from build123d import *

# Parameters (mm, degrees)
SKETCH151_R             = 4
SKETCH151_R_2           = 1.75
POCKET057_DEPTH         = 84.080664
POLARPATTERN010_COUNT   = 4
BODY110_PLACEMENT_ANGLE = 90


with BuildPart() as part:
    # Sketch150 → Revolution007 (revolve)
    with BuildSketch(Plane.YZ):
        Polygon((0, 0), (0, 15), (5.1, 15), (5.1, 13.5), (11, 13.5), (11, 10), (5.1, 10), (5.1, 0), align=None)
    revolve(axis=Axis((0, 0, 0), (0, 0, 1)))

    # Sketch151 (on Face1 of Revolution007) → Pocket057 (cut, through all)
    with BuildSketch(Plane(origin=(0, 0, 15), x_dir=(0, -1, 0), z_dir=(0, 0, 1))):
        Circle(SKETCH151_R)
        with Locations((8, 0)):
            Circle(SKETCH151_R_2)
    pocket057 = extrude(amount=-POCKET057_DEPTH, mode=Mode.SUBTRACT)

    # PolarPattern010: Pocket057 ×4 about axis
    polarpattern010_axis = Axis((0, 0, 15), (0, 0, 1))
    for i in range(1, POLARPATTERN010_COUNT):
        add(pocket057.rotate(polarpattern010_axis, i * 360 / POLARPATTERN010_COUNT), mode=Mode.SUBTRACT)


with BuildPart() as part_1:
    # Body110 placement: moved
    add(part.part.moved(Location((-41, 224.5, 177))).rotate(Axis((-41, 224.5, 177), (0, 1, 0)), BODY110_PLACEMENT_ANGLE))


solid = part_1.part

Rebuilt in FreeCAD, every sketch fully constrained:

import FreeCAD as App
import Part
import Sketcher
from FreeCAD import Vector


def add_polygon(sketch, points):
    """Adds a closed chain of lines whose ends are joined by coincident constraints."""
    first, n = sketch.GeometryCount, len(points)
    for a, b in zip(points, points[1:] + points[:1]):
        sketch.addGeometry(Part.LineSegment(App.Vector(*a, 0), App.Vector(*b, 0)), False)
    for i in range(n):
        sketch.addConstraint(Sketcher.Constraint("Coincident", first + i, 2, first + (i + 1) % n, 1))

doc = App.newDocument("Part")
body = doc.addObject("PartDesign::Body", "Body")

# Sketch on YZ plane
sketch1 = body.newObject("Sketcher::SketchObject", "Sketch")
sketch1.AttachmentSupport = (doc.getObject("YZ_Plane"), [""])
sketch1.MapMode = "FlatFace"
add_polygon(sketch1, [(0, 15), (0, 0), (5.1, 0), (5.1, 10), (11, 10), (11, 13.5), (5.1, 13.5), (5.1, 15)])  # lines 0-7
sketch1.addConstraint([
    Sketcher.Constraint("Vertical", 0),
    Sketcher.Constraint("Horizontal", 1),
    Sketcher.Constraint("Vertical", 2),
    Sketcher.Constraint("Horizontal", 3),
    Sketcher.Constraint("Vertical", 4),
    Sketcher.Constraint("Horizontal", 5),
    Sketcher.Constraint("Vertical", 6),
    Sketcher.Constraint("Horizontal", 7),
    Sketcher.Constraint("Coincident", 0, 2, -1, 1),
    Sketcher.Constraint("Vertical", 2, 2, 5, 2),
    Sketcher.Constraint("DistanceY", 0, 2, 0, 1, 15.0),
    Sketcher.Constraint("DistanceY", 2, 1, 2, 2, 10.0),
    Sketcher.Constraint("DistanceX", 1, 1, 1, 2, 5.1),
    Sketcher.Constraint("DistanceX", 3, 1, 3, 2, 5.9),
    Sketcher.Constraint("DistanceY", 4, 1, 4, 2, 3.5),
])
revolution = body.newObject("PartDesign::Revolution", "Revolution")
revolution.Profile = sketch1
revolution.ReferenceAxis = (sketch1, ["V_Axis"])
revolution.Angle = 360

# Sketch on XY plane
sketch2 = body.newObject("Sketcher::SketchObject", "Sketch001")
sketch2.AttachmentSupport = (doc.getObject("XY_Plane"), [""])
sketch2.MapMode = "FlatFace"
sketch2.AttachmentOffset = App.Placement(Vector(0, 0, 15), App.Rotation())
sketch2.addGeometry([
    Part.Circle(Vector(0, 0, 0), Vector(0, 0, 1), 4),
    Part.Circle(Vector(0, -8, 0), Vector(0, 0, 1), 1.8),
], False)
sketch2.addConstraint([
    Sketcher.Constraint("Coincident", 0, 3, -1, 1),
    Sketcher.Constraint("PointOnObject", 1, 3, -2),
    Sketcher.Constraint("Diameter", 0, 8.0),
    Sketcher.Constraint("Diameter", 1, 3.5),
    Sketcher.Constraint("DistanceY", 1, 3, -1, 1, 8.0),
])
pocket1 = body.newObject("PartDesign::Pocket", "Pocket")
pocket1.Profile = sketch2
pocket1.Type = "ThroughAll"
doc.recompute()

polarpattern = body.newObject("PartDesign::PolarPattern", "PolarPattern")
polarpattern.Originals = [pocket1]
polarpattern.Axis = (doc.getObject("Z_Axis"), [""])
polarpattern.Angle = 360
polarpattern.Occurrences = 4
body.Tip = polarpattern
body2 = doc.addObject("PartDesign::Body", "Body001")
doc.recompute()

body.Placement = App.Placement(Vector(-41, 224.5, 177), App.Rotation(Vector(0, 1, 0), 90))
boolean = body2.newObject("PartDesign::Boolean", "Boolean")
boolean.Type = "Fuse"
boolean.addObjects([body])

doc.recompute()
